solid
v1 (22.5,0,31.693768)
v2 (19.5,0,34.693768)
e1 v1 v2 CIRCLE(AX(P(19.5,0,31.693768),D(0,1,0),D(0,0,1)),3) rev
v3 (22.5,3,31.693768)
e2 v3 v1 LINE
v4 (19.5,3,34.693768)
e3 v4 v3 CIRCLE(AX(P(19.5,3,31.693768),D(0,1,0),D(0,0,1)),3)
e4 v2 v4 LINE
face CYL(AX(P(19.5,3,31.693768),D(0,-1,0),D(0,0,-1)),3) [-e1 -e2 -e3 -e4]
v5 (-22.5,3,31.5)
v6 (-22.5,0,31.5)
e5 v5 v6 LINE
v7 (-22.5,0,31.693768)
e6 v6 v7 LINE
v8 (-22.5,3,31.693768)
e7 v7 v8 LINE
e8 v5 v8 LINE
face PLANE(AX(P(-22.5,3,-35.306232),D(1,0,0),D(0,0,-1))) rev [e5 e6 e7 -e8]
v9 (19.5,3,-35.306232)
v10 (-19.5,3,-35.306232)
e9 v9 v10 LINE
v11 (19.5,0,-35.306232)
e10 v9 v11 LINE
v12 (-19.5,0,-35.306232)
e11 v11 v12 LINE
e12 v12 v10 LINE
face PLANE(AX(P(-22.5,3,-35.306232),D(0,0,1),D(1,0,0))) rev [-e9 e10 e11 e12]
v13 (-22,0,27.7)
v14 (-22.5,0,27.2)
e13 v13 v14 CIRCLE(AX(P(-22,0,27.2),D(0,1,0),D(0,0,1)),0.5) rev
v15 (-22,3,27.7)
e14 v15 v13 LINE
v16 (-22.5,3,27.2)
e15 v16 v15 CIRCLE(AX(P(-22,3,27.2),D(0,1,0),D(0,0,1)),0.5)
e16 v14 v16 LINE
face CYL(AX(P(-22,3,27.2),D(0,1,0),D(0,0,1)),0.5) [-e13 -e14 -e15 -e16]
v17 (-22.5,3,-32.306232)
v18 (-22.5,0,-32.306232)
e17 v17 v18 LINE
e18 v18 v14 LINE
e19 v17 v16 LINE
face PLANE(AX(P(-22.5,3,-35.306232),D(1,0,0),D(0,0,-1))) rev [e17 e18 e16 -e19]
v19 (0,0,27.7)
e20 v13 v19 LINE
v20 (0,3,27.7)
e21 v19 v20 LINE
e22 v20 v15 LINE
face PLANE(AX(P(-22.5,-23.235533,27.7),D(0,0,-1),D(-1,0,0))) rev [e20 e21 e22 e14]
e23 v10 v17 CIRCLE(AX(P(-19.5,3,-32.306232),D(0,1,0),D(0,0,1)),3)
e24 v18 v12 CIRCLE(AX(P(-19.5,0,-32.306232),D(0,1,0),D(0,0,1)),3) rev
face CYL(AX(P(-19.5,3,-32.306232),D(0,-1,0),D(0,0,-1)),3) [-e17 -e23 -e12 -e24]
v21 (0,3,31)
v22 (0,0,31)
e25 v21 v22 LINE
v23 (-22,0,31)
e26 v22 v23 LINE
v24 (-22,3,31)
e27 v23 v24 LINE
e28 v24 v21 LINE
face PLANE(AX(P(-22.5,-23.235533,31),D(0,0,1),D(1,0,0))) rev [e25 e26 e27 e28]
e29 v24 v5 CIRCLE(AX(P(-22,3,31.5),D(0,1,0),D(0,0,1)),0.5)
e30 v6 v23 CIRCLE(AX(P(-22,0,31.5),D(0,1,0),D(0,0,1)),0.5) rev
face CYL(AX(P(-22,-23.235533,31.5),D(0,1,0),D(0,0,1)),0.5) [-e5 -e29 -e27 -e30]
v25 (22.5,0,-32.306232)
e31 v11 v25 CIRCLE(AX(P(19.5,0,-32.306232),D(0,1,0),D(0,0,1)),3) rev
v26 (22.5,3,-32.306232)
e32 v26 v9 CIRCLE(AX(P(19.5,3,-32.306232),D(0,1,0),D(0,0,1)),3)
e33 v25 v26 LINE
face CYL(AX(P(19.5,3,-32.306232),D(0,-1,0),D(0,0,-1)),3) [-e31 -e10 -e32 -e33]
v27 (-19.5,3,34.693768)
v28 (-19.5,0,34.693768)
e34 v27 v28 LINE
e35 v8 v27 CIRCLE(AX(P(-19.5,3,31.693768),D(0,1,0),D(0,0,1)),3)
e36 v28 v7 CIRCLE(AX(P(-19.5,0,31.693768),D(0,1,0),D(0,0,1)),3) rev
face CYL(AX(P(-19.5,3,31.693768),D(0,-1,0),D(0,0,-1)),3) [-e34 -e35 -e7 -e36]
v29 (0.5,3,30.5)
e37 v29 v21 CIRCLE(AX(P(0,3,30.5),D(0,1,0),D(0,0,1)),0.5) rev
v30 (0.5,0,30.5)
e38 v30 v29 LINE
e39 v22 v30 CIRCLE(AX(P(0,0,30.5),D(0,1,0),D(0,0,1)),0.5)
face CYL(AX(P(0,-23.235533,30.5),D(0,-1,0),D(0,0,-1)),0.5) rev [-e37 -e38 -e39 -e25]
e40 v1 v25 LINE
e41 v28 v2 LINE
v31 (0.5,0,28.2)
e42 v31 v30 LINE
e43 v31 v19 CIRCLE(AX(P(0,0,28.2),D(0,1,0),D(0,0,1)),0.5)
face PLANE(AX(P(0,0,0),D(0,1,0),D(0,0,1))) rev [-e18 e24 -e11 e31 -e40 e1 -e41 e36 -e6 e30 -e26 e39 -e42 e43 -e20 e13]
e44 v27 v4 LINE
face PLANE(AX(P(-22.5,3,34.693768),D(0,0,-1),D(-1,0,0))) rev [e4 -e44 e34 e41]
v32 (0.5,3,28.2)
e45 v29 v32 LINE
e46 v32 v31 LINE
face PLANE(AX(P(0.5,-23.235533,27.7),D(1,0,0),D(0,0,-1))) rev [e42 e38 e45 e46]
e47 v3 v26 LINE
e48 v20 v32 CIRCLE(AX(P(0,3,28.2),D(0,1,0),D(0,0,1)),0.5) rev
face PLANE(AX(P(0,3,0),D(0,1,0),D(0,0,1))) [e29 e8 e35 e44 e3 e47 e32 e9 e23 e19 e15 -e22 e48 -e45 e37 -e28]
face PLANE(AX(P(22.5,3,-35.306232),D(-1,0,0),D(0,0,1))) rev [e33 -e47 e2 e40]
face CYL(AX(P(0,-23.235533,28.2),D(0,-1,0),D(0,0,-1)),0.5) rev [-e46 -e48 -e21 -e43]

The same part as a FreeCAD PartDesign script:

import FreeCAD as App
import Part
import Sketcher
Q = App.Units.Quantity


def edges_at(feature, points):
    """Names of the edges that pass closest to the given points."""
    edges = feature.Shape.Edges
    near = lambda p: min(range(len(edges)), key=lambda i: edges[i].distToShape(Part.Vertex(*p))[0])
    return sorted({f"Edge{near(p) + 1}" for p in points})


def add_polygon(sketch, points):
    """Adds a closed chain of lines whose ends are joined by coincident constraints."""
    first, n = sketch.GeometryCount, len(points)
    for a, b in zip(points, points[1:] + points[:1]):
        sketch.addGeometry(Part.LineSegment(App.Vector(*a, 0), App.Vector(*b, 0)), False)
    for i in range(n):
        sketch.addConstraint(Sketcher.Constraint("Coincident", first + i, 2, first + (i + 1) % n, 1))

doc = App.newDocument("Part")
params = doc.addObject("Spreadsheet::Sheet", "Params")
for row, (alias, value) in enumerate([
    ("sketch1_width", "45 mm"),
    ("sketch1_height", "70 mm"),
    ("pad1_length", "3 mm"),
    ("sketch2_width", "23 mm"),
    ("sketch2_height", "3.3 mm"),
    ("pocket1_length", "3 mm"),
    ("fillet_radius", "3 mm"),
    ("fillet2_radius", "0.5 mm"),
], start=1):
    params.set(f"A{row}", alias)
    params.set(f"B{row}", "=" + value)
    params.setAlias(f"B{row}", alias)

body = doc.addObject("PartDesign::Body", "Body")

sketch1 = body.newObject("Sketcher::SketchObject", "Sketch")
sketch1.AttachmentSupport = (doc.getObject("XZ_Plane"), [""])
sketch1.MapMode = "FlatFace"
add_polygon(sketch1, [(-22, -35), (-22, 35), (22, 35), (22, -35)])
sketch1.addConstraint([
    Sketcher.Constraint("Vertical", 0),
    Sketcher.Constraint("Horizontal", 1),
    Sketcher.Constraint("Vertical", 2),
    Sketcher.Constraint("Horizontal", 3),
    Sketcher.Constraint("DistanceX", 1, 1, 1, 2, Q("45 mm")),
    Sketcher.Constraint("DistanceY", 0, 1, 0, 2, Q("70 mm")),
    Sketcher.Constraint("DistanceX", 0, 2, -1, 1, Q("22.5 mm")),
    Sketcher.Constraint("DistanceY", -1, 1, 0, 2, Q("34.693768 mm")),
])
sketch1.setExpression("Constraints[8]", "Params.sketch1_width")
sketch1.setExpression("Constraints[9]", "Params.sketch1_height")
pad1 = body.newObject("PartDesign::Pad", "Pad")
pad1.Profile = sketch1
pad1.setExpression("Length", "Params.pad1_length")
pad1.Reversed = True

sketch2 = body.newObject("Sketcher::SketchObject", "Sketch001")
sketch2.AttachmentSupport = (doc.getObject("XZ_Plane"), [""])
sketch2.MapMode = "FlatFace"
sketch2.AttachmentOffset = App.Placement(App.Vector(0, 0, -3), App.Rotation())
add_polygon(sketch2, [(-22.5, 27.7), (-22.5, 31), (0.5, 31), (0.5, 27.7)])
sketch2.addConstraint([
    Sketcher.Constraint("Vertical", 0),
    Sketcher.Constraint("Horizontal", 1),
    Sketcher.Constraint("Vertical", 2),
    Sketcher.Constraint("Horizontal", 3),
    Sketcher.Constraint("DistanceX", 1, 1, 1, 2, Q("23 mm")),
    Sketcher.Constraint("DistanceY", 0, 1, 0, 2, Q("3.3 mm")),
    Sketcher.Constraint("DistanceY", -1, 1, 0, 2, Q("31 mm")),
    Sketcher.Constraint("DistanceX", 0, 2, -1, 1, Q("22.5 mm")),
])
sketch2.setExpression("Constraints[8]", "Params.sketch2_width")
sketch2.setExpression("Constraints[9]", "Params.sketch2_height")
pocket1 = body.newObject("PartDesign::Pocket", "Pocket")
pocket1.Profile = sketch2
pocket1.setExpression("Length", "Params.pocket1_length")
pocket1.Reversed = True
doc.recompute()

fillet = body.newObject("PartDesign::Fillet", "Fillet")
fillet.Base = (pocket1, edges_at(pocket1, [
    (-22.5, 1.5, -35.306),
    (22.5, 1.5, -35.306),
    (22.5, 1.5, 34.694),
    (-22.5, 1.5, 34.694),
]))
fillet.setExpression("Radius", "Params.fillet_radius")
doc.recompute()

fillet2 = body.newObject("PartDesign::Fillet", "Fillet001")
fillet2.Base = (fillet, edges_at(fillet, [
    (-22.5, 1.5, 31),
    (-22.5, 1.5, 27.7),
    (0.5, 1.5, 27.7),
    (0.5, 1.5, 31),
]))
fillet2.setExpression("Radius", "Params.fillet2_radius")

doc.recompute()
